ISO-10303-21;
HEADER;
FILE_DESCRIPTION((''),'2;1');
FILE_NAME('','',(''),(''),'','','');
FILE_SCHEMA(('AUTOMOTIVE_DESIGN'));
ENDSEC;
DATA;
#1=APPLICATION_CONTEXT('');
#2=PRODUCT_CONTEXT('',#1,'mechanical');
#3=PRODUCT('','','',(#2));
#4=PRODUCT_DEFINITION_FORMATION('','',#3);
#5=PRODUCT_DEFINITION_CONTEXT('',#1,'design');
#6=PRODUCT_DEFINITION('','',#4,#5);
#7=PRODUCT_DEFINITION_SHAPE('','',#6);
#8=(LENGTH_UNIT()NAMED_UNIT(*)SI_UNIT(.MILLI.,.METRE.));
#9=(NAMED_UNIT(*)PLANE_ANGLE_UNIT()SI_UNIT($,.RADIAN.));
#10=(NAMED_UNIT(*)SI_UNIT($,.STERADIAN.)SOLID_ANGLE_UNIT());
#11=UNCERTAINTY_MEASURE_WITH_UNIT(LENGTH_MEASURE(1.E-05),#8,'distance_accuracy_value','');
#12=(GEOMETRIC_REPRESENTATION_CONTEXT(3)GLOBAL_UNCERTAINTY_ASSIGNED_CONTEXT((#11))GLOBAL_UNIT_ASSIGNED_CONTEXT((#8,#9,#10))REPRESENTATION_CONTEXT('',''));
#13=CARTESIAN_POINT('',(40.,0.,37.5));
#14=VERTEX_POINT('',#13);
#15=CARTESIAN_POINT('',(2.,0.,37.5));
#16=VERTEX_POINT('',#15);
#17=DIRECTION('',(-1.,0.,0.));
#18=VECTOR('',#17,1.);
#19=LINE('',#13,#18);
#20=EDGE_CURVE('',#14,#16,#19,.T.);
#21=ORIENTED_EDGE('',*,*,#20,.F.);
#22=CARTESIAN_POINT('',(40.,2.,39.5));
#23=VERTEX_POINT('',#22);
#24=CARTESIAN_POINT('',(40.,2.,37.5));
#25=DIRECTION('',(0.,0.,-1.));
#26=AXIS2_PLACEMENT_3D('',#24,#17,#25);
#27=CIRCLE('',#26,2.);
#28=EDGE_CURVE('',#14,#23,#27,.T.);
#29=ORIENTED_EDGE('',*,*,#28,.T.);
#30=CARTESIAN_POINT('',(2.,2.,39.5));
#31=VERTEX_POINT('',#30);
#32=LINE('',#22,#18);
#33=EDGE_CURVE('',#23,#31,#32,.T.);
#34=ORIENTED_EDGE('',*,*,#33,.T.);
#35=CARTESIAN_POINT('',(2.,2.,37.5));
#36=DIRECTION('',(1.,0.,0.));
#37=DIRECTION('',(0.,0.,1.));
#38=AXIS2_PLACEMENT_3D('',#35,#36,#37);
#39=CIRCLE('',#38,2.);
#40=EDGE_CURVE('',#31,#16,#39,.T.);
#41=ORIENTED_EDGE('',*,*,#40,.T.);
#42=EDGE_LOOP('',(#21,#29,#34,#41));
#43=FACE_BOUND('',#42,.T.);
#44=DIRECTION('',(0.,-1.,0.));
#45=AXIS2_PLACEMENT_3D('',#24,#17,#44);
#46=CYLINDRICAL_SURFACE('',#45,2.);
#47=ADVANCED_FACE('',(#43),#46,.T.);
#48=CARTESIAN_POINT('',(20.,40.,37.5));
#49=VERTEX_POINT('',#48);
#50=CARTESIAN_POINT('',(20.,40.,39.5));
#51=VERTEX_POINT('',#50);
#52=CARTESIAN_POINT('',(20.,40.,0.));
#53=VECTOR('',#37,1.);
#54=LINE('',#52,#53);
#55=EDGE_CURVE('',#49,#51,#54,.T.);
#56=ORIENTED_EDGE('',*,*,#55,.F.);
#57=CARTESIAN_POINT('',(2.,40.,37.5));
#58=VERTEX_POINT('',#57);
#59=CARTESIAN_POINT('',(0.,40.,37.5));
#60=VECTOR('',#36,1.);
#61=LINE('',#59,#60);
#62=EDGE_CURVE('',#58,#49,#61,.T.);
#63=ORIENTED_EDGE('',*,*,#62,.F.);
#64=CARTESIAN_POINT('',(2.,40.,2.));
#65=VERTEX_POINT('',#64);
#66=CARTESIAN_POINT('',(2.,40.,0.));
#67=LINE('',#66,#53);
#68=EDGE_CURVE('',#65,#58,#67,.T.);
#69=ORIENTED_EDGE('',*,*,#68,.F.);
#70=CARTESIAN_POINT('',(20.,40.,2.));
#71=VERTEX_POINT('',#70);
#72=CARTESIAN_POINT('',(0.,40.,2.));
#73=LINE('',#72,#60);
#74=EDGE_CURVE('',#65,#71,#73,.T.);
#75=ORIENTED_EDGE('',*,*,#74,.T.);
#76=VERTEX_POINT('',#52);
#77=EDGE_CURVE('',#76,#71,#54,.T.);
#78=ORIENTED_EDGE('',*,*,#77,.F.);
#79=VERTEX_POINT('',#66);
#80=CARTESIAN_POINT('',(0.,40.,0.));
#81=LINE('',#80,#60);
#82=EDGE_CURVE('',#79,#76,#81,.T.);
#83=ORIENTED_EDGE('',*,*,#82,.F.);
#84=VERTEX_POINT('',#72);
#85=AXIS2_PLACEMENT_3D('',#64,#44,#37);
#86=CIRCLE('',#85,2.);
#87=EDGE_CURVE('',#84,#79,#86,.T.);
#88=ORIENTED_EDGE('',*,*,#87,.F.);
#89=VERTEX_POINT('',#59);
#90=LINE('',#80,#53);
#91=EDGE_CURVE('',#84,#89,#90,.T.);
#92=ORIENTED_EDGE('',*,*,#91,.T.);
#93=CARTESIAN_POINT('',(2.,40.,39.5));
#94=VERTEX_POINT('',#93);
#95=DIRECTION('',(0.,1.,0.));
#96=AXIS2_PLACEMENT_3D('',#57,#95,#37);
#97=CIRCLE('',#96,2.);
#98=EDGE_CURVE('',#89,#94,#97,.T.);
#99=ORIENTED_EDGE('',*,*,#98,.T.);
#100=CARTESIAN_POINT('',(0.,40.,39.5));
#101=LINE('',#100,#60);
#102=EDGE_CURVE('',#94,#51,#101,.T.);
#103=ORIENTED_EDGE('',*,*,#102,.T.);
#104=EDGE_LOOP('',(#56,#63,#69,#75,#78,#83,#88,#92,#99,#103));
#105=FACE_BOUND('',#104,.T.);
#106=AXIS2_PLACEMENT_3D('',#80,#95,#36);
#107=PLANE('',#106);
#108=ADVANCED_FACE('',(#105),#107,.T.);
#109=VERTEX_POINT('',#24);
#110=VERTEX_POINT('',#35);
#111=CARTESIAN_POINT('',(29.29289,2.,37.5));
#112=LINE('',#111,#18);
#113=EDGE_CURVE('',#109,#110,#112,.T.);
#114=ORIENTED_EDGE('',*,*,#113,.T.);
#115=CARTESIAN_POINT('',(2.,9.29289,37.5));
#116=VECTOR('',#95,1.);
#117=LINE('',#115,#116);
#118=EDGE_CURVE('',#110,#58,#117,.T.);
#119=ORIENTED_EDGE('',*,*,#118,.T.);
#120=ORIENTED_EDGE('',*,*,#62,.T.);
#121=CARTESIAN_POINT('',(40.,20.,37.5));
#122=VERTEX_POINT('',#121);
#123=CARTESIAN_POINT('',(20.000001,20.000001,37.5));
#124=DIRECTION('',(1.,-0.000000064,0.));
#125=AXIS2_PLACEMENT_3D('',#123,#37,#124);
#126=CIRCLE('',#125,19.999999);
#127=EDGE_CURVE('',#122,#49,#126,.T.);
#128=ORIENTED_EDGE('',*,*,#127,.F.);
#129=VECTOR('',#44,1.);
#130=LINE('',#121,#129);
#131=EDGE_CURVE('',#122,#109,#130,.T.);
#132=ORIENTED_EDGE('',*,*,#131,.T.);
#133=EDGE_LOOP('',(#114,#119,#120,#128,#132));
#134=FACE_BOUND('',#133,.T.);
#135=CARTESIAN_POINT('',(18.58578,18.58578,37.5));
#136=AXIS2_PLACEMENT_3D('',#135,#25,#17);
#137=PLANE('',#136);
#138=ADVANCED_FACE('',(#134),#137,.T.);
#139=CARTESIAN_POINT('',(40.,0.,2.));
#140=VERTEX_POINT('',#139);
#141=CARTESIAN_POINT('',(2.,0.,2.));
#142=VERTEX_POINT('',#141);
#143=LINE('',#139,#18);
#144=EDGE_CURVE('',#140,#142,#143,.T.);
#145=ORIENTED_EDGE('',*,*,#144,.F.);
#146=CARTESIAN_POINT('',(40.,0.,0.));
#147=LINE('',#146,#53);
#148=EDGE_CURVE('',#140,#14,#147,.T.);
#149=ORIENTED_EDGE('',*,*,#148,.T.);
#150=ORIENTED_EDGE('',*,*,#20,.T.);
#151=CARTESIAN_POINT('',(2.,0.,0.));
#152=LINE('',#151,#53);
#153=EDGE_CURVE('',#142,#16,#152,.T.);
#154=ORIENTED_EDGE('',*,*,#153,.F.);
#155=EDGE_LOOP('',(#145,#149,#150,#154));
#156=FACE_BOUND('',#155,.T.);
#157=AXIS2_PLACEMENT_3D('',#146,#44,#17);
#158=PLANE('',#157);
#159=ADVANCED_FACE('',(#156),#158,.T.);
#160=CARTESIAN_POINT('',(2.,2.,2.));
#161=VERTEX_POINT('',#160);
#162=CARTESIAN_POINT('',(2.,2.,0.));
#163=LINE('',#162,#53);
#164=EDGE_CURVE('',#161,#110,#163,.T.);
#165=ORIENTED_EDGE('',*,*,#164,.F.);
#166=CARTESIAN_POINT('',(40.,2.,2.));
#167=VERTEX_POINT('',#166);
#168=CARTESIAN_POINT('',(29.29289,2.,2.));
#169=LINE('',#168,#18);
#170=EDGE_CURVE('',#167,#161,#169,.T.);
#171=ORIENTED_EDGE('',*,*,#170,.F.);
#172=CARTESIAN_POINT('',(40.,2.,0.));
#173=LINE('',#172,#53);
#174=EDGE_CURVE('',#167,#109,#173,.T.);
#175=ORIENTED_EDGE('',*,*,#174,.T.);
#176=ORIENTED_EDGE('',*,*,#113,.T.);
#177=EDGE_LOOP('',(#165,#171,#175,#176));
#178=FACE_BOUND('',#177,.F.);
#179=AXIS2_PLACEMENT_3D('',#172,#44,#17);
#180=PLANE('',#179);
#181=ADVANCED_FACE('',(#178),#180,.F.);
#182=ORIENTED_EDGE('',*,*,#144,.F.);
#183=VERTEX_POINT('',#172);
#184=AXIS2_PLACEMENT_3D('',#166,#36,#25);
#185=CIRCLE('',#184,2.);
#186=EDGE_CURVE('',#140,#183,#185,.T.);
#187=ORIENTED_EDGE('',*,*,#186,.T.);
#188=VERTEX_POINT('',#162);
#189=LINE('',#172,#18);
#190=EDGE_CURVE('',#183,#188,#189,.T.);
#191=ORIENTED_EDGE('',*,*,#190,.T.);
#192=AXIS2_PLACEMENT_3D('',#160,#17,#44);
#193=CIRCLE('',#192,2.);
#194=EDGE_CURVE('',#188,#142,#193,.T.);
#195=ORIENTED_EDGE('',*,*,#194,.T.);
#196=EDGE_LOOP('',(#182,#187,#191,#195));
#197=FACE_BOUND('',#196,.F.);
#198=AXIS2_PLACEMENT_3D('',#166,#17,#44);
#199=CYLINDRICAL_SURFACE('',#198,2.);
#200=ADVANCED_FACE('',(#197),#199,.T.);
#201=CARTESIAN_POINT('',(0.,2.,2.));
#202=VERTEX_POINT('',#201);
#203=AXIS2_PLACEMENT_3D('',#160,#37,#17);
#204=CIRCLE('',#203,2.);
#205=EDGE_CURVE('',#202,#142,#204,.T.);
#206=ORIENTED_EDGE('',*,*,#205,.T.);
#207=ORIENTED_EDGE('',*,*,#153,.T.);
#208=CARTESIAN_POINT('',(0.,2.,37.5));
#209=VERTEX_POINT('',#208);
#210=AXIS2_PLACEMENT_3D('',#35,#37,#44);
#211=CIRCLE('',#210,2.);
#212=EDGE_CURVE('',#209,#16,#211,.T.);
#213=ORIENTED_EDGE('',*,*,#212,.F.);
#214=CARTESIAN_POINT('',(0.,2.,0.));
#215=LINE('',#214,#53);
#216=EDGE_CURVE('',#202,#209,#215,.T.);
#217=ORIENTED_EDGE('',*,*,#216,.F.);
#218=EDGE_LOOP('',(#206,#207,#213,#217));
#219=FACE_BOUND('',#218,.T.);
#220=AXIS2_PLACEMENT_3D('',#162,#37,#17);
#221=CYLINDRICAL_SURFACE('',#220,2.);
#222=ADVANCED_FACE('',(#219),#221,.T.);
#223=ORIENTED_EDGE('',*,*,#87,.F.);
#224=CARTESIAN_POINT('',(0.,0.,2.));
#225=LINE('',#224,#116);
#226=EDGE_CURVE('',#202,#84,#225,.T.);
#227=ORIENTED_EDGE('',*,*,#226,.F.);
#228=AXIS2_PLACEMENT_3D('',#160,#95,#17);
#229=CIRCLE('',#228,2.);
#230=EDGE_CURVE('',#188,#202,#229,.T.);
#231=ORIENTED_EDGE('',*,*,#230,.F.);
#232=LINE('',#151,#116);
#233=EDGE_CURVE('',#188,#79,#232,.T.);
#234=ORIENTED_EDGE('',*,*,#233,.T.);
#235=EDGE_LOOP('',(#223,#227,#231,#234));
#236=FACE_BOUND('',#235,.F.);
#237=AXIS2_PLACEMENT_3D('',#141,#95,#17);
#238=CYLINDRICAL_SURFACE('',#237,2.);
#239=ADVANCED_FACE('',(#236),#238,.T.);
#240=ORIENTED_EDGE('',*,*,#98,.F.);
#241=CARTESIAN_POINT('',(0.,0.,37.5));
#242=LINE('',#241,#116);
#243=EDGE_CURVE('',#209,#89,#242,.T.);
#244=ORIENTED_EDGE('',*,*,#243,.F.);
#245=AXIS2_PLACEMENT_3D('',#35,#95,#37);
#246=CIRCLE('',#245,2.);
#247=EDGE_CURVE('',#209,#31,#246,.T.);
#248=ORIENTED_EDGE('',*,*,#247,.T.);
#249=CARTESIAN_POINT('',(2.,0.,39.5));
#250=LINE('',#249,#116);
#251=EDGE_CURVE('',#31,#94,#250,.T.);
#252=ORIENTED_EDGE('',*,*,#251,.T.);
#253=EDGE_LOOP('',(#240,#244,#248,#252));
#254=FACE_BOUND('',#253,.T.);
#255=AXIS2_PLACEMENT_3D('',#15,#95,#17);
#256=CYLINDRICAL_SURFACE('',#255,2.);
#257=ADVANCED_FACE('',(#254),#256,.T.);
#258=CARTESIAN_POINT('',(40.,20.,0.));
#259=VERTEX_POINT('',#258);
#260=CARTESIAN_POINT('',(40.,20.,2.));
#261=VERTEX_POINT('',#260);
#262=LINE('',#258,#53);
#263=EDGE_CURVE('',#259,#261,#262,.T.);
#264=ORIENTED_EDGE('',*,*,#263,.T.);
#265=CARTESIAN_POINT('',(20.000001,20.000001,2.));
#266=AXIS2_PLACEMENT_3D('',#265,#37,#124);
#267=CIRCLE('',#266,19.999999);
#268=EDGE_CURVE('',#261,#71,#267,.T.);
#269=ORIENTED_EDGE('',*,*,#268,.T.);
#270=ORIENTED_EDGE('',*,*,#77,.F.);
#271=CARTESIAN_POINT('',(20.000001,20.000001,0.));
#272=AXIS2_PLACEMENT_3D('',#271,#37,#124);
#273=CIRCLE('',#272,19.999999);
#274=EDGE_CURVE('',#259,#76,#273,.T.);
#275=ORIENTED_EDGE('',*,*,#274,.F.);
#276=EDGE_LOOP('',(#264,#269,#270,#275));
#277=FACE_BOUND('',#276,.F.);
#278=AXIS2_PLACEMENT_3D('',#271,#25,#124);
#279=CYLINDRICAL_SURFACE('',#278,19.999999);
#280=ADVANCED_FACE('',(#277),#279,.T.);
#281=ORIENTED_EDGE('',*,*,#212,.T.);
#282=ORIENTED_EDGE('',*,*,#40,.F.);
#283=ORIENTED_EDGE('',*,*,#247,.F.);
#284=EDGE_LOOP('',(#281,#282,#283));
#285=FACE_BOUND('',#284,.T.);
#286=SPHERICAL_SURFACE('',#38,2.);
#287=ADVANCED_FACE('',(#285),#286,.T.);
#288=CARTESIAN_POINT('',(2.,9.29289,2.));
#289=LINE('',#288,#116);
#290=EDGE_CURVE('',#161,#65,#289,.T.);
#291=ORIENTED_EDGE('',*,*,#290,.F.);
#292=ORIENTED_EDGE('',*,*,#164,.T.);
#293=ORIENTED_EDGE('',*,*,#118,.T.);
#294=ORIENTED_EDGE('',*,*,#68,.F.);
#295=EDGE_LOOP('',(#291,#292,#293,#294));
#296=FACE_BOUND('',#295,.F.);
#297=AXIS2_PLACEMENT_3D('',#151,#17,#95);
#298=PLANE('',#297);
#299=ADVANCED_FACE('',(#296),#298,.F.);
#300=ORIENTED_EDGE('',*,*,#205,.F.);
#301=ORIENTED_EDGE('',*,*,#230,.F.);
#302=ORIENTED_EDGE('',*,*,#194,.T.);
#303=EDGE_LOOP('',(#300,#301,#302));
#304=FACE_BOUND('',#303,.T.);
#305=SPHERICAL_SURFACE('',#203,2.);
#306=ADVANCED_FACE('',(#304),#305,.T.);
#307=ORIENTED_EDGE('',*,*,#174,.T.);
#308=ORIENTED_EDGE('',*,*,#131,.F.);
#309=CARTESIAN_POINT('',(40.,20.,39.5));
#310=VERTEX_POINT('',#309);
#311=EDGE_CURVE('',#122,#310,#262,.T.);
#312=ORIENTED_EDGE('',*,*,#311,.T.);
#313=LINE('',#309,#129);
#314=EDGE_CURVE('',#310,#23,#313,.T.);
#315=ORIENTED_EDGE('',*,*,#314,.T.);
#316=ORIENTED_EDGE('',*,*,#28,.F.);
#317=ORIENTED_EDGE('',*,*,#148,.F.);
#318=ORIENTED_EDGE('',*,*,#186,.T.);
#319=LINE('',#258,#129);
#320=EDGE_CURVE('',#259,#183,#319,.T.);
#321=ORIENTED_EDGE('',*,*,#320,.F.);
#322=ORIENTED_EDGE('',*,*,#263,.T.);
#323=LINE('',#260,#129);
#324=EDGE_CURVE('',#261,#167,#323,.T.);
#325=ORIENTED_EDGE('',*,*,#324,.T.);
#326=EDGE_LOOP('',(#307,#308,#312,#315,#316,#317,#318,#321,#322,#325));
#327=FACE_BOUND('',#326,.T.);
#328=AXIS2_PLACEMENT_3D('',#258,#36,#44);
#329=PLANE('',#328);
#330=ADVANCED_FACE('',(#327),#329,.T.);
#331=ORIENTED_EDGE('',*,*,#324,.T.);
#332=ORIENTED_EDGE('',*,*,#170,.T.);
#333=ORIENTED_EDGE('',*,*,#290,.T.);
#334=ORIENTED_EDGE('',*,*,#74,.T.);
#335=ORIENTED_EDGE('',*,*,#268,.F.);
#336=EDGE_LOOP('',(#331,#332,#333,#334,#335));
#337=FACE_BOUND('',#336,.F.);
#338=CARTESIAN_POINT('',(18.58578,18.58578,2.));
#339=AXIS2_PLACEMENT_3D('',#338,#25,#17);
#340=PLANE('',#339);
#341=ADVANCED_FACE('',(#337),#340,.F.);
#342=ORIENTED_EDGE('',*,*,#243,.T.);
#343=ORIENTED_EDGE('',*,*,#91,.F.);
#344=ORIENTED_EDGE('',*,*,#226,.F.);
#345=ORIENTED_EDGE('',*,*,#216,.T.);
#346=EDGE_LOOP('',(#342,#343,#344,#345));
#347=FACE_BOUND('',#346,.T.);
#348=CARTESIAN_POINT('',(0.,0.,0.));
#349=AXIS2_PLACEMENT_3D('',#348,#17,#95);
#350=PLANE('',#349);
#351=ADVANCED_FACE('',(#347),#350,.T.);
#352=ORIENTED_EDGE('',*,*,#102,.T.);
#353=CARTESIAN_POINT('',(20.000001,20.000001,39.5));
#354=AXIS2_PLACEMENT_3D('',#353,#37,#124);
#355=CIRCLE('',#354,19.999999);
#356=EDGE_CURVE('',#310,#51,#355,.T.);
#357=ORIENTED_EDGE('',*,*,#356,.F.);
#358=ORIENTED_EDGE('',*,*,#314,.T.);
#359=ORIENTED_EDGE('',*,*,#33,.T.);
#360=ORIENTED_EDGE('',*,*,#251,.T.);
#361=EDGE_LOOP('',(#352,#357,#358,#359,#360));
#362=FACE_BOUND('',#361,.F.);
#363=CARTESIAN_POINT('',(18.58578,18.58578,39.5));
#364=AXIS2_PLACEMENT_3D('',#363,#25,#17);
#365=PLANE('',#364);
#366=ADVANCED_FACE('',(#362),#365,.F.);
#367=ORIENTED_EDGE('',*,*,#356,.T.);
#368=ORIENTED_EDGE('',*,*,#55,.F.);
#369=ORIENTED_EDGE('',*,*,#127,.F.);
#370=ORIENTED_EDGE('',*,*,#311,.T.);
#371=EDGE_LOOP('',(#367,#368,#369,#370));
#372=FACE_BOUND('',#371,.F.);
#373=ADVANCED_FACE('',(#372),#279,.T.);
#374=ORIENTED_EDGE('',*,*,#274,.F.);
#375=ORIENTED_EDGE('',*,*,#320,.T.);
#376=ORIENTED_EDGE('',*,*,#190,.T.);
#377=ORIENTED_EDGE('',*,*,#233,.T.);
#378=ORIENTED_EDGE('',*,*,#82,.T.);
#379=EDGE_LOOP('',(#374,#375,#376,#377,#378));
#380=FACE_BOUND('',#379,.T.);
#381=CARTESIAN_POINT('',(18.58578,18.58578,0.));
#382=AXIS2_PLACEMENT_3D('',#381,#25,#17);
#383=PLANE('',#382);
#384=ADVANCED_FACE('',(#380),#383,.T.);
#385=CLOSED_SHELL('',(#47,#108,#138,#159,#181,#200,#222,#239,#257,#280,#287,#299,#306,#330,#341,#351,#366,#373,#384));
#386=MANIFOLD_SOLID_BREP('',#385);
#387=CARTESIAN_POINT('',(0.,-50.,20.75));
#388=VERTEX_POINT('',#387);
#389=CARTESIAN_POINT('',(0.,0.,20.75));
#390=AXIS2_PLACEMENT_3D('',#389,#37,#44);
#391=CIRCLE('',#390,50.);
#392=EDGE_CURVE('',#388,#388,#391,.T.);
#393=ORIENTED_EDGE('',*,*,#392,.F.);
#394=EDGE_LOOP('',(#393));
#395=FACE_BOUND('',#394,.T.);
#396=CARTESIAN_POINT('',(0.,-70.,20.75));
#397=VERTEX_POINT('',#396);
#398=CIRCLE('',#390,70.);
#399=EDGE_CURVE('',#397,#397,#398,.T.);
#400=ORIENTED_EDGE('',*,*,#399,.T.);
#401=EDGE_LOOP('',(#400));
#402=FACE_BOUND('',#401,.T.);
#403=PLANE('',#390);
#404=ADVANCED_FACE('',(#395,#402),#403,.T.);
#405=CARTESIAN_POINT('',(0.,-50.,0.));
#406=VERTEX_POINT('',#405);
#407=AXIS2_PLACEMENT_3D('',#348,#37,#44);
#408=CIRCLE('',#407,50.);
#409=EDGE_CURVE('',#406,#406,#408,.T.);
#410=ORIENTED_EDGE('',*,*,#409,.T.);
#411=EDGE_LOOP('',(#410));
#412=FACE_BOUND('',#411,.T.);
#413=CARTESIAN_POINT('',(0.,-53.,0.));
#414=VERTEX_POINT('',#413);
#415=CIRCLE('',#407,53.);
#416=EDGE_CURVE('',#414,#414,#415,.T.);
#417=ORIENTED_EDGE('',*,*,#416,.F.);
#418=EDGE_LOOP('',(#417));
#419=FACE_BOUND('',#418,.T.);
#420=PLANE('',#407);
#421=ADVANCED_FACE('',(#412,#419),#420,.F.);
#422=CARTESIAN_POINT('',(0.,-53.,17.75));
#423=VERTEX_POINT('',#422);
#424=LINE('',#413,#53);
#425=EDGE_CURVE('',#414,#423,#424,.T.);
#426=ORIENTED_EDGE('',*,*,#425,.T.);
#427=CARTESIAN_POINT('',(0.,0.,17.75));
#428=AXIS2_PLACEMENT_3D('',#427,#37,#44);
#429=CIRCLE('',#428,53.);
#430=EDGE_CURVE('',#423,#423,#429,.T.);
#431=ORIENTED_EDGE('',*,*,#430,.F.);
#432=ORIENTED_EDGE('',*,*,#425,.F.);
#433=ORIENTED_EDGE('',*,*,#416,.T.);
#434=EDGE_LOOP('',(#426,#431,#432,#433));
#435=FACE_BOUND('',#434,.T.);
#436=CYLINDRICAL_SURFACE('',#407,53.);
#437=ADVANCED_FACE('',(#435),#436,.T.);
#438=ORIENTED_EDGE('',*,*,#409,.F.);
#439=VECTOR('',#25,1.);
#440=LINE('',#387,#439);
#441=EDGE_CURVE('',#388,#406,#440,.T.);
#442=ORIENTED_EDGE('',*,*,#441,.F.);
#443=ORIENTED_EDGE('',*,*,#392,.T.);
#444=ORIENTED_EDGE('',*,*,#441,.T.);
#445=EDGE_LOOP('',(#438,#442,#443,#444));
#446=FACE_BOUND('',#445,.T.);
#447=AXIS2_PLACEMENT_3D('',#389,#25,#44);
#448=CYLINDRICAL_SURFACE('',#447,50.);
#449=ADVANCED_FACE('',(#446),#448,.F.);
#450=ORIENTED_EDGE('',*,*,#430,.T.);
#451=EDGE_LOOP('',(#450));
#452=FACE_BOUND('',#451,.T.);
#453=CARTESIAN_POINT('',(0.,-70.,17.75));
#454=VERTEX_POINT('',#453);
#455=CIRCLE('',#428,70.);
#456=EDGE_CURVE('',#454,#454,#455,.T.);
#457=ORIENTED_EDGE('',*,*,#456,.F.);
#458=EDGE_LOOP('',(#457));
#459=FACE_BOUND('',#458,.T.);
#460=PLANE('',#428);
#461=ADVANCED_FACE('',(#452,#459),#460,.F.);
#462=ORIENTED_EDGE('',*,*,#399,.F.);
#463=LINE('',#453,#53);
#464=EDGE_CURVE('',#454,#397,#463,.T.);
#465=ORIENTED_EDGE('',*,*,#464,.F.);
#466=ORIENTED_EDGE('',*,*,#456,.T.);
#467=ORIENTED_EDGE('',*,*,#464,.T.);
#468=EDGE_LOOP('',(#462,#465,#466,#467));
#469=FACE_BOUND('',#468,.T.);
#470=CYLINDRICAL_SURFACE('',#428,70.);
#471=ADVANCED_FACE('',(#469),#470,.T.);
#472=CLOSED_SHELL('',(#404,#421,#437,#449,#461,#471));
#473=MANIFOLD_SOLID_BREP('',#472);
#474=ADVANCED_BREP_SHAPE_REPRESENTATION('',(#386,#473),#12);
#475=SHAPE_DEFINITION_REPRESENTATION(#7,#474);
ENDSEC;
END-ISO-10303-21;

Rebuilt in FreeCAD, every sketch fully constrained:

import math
import FreeCAD as App
import Part
import Sketcher


def edges_at(feature, points):
    """Names of the edges that pass closest to the given points."""
    edges = feature.Shape.Edges
    near = lambda p: min(range(len(edges)), key=lambda i: edges[i].distToShape(Part.Vertex(*p))[0])
    return sorted({f"Edge{near(p) + 1}" for p in points})


def faces_at(feature, points):
    """Names of the faces that lie closest to the given points."""
    faces = feature.Shape.Faces
    near = lambda p: min(range(len(faces)), key=lambda i: faces[i].distToShape(Part.Vertex(*p))[0])
    return sorted({f"Face{near(p) + 1}" for p in points})


def add_polygon(sketch, points):
    """Adds a closed chain of lines whose ends are joined by coincident constraints."""
    first, n = sketch.GeometryCount, len(points)
    for a, b in zip(points, points[1:] + points[:1]):
        sketch.addGeometry(Part.LineSegment(App.Vector(*a, 0), App.Vector(*b, 0)), False)
    for i in range(n):
        sketch.addConstraint(Sketcher.Constraint("Coincident", first + i, 2, first + (i + 1) % n, 1))

doc = App.newDocument("Part")
params = doc.addObject("Spreadsheet::Sheet", "Params")
for row, (alias, value) in enumerate([
    ("sketch1_radius", "19.999999 mm"),
    ("sketch1_width", "40 mm"),
    ("pad1_length", "39.5 mm"),
    ("thickness_wall", "2 mm"),
    ("fillet_radius", "2 mm"),
    ("sketch2_width", "3 mm"),
    ("sketch2_width2", "20 mm"),
    ("sketch2_height", "17.75 mm"),
    ("revolution_angle", "360 deg"),
], start=1):
    params.set(f"A{row}", alias)
    params.set(f"B{row}", "=" + value)
    params.setAlias(f"B{row}", alias)

body = doc.addObject("PartDesign::Body", "Body")

# Sketch on XY plane
sketch1 = doc.addObject("Sketcher::SketchObject", "Sketch")
body.addObject(sketch1)
sketch1.AttachmentSupport = (doc.XY_Plane, [""])
sketch1.MapMode = "FlatFace"
sketch1.addGeometry([
    Part.LineSegment(App.Vector(0, 40, 0), App.Vector(0, 0, 0)),  # 0
    Part.LineSegment(App.Vector(0, 0, 0), App.Vector(40, 0, 0)),  # 1
    Part.LineSegment(App.Vector(40, 0, 0), App.Vector(40, 20, 0)),  # 2
    Part.ArcOfCircle(Part.Circle(App.Vector(20, 20, 0), App.Vector(0, 0, 1), 20), math.radians(0), math.radians(90)),  # 3
    Part.LineSegment(App.Vector(20, 40, 0), App.Vector(0, 40, 0)),  # 4
], False)
sketch1.addConstraint([
    Sketcher.Constraint("Coincident", 0, 2, 1, 1),
    Sketcher.Constraint("Coincident", 1, 2, 2, 1),
    Sketcher.Constraint("Tangent", 2, 2, 3, 1),
    Sketcher.Constraint("Tangent", 3, 2, 4, 1),
    Sketcher.Constraint("Coincident", 4, 2, 0, 1),
    Sketcher.Constraint("Vertical", 0),
    Sketcher.Constraint("Horizontal", 1),
    Sketcher.Constraint("Vertical", 2),
    Sketcher.Constraint("Horizontal", 4),
    Sketcher.Constraint("Coincident", 0, 2, -1, 1),
    Sketcher.Constraint("Equal", 1, 0),
    Sketcher.Constraint("Radius", 3, 19.999999),
    Sketcher.Constraint("DistanceX", 1, 1, 1, 2, 40.0),
])
sketch1.setExpression("Constraints[11]", "Params.sketch1_radius")
sketch1.setExpression("Constraints[12]", "Params.sketch1_width")
pad1 = doc.addObject("PartDesign::Pad", "Pad")
body.addObject(pad1)
pad1.Profile = sketch1
pad1.setExpression("Length", "Params.pad1_length")
doc.recompute()

thickness = doc.addObject("PartDesign::Thickness", "Thickness")
body.addObject(thickness)
thickness.Base = (pad1, faces_at(pad1, [(10, 40, 19.75), (34.142, 34.142, 19.75), (40, 10, 19.75)]))
thickness.setExpression("Value", "Params.thickness_wall")
thickness.Reversed = True
thickness.Join = "Arc"
doc.recompute()

fillet = doc.addObject("PartDesign::Fillet", "Fillet")
body.addObject(fillet)
fillet.Base = (thickness, edges_at(thickness, [
    (20, 0, 39.5),
    (0, 20, 39.5),
    (0, 0, 19.75),
    (0, 20, 0),
    (20, 0, 0),
]))
fillet.setExpression("Radius", "Params.fillet_radius")
body2 = doc.addObject("PartDesign::Body", "Body001")

# Sketch on YZ plane
sketch2 = doc.addObject("Sketcher::SketchObject", "Sketch001")
body2.addObject(sketch2)
sketch2.AttachmentSupport = (doc.getObject("YZ_Plane001"), [""])
sketch2.MapMode = "FlatFace"
add_polygon(sketch2, [(-53, 17.8), (-53, 0), (-50, 0), (-50, 20.8), (-70, 20.8), (-70, 17.8)])  # lines 0-5
sketch2.addConstraint([
    Sketcher.Constraint("Vertical", 0),
    Sketcher.Constraint("Horizontal", 1),
    Sketcher.Constraint("Vertical", 2),
    Sketcher.Constraint("Horizontal", 3),
    Sketcher.Constraint("Vertical", 4),
    Sketcher.Constraint("Horizontal", 5),
    Sketcher.Constraint("PointOnObject", 0, 2, -1),
    Sketcher.Constraint("Equal", 1, 4),
    Sketcher.Constraint("DistanceX", 1, 1, 1, 2, 3.0),
    Sketcher.Constraint("DistanceX", 3, 2, 3, 1, 20.0),
    Sketcher.Constraint("DistanceX", 0, 2, -1, 1, 53.0),
    Sketcher.Constraint("DistanceY", 0, 2, 0, 1, 17.75),
])
sketch2.setExpression("Constraints[14]", "Params.sketch2_width")
sketch2.setExpression("Constraints[15]", "Params.sketch2_width2")
sketch2.setExpression("Constraints[17]", "Params.sketch2_height")
revolution = doc.addObject("PartDesign::Revolution", "Revolution")
body2.addObject(revolution)
revolution.Profile = sketch2
revolution.ReferenceAxis = (sketch2, ["V_Axis"])
revolution.setExpression("Angle", "Params.revolution_angle")

doc.recompute()
